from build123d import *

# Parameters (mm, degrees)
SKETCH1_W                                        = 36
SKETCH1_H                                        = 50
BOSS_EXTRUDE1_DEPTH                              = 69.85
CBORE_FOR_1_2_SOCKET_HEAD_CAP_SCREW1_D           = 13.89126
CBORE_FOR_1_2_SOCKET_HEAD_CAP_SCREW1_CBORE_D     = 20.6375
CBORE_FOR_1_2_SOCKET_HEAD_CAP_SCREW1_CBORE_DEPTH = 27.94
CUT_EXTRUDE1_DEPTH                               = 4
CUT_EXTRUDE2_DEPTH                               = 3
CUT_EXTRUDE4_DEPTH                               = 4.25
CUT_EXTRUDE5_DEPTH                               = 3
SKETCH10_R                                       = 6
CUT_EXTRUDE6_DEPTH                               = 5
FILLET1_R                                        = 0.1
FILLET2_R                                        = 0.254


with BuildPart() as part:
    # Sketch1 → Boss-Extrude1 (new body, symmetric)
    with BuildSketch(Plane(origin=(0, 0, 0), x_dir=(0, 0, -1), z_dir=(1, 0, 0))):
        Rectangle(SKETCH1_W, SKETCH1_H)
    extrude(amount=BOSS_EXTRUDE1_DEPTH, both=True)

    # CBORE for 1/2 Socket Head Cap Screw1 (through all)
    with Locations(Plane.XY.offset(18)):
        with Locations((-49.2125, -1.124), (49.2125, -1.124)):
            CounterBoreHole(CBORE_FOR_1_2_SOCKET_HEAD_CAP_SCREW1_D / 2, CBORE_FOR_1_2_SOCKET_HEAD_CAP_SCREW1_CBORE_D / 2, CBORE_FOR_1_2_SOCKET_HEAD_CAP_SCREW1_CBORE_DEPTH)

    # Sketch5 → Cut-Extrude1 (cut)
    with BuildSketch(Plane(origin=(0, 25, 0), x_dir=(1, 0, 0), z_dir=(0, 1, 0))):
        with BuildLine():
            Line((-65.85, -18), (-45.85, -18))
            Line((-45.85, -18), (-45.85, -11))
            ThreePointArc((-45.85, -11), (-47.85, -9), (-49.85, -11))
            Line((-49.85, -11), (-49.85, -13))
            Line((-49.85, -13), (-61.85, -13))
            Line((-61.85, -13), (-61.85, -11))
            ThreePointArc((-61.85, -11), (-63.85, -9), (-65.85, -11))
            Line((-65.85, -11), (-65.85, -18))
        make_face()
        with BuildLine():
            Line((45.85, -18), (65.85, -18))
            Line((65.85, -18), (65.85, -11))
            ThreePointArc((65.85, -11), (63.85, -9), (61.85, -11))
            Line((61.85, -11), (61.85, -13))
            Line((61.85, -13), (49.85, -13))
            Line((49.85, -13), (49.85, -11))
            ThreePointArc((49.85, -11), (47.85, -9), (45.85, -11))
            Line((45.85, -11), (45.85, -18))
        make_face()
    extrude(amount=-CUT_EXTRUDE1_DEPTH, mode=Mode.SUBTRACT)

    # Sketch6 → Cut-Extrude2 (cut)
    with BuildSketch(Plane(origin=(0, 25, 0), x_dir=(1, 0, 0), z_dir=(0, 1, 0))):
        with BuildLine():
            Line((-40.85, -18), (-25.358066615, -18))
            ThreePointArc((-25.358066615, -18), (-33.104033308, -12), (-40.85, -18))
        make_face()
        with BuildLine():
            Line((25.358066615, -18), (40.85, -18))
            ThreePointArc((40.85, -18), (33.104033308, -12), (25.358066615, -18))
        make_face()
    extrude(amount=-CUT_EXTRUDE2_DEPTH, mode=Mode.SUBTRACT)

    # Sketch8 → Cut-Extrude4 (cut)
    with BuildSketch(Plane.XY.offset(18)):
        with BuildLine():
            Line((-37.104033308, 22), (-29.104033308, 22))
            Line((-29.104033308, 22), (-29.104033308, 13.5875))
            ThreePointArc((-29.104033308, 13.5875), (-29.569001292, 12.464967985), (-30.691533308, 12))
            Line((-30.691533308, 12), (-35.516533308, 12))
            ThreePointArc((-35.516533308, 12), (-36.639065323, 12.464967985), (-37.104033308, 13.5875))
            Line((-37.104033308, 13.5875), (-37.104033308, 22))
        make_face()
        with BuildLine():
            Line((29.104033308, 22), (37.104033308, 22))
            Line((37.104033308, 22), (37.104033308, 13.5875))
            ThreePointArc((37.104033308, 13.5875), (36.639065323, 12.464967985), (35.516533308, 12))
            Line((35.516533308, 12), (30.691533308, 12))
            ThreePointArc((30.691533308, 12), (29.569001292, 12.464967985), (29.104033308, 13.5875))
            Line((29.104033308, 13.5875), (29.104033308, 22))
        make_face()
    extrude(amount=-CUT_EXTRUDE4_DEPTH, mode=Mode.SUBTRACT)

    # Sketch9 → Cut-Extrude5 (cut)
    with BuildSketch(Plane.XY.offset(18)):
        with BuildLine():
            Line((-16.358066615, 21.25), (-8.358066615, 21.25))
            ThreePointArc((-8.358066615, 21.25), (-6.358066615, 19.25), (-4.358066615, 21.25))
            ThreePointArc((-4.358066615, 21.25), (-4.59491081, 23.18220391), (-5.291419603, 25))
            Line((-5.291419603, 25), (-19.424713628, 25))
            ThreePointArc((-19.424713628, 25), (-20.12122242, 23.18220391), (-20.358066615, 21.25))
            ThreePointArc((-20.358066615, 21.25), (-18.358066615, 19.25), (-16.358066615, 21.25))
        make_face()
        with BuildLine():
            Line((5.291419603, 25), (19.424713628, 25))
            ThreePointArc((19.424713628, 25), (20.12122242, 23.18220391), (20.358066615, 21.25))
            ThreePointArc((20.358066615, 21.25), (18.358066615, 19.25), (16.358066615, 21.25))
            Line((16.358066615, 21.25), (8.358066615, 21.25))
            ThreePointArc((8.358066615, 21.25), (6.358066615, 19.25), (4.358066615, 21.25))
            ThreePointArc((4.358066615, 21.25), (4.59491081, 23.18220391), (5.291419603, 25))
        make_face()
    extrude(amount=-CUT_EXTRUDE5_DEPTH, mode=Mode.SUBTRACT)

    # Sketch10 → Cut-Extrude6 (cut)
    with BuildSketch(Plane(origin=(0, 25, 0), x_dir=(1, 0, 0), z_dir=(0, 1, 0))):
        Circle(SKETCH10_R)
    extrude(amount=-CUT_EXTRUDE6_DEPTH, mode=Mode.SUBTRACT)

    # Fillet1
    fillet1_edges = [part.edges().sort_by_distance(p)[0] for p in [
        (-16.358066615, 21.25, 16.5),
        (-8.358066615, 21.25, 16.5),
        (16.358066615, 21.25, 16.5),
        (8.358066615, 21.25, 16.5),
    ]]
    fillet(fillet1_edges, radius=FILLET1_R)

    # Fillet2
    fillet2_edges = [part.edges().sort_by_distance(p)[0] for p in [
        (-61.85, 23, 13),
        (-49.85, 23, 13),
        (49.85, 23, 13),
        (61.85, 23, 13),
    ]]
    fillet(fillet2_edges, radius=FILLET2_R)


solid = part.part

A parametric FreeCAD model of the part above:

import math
import FreeCAD as App
import Part
import Sketcher
from FreeCAD import Vector


def edges_at(feature, points):
    """Names of the edges that pass closest to the given points."""
    edges = feature.Shape.Edges
    near = lambda p: min(range(len(edges)), key=lambda i: edges[i].distToShape(Part.Vertex(*p))[0])
    return sorted({f"Edge{near(p) + 1}" for p in points})


def add_polygon(sketch, points):
    """Adds a closed chain of lines whose ends are joined by coincident constraints."""
    first, n = sketch.GeometryCount, len(points)
    for a, b in zip(points, points[1:] + points[:1]):
        sketch.addGeometry(Part.LineSegment(App.Vector(*a, 0), App.Vector(*b, 0)), False)
    for i in range(n):
        sketch.addConstraint(Sketcher.Constraint("Coincident", first + i, 2, first + (i + 1) % n, 1))

doc = App.newDocument("Part")
body = doc.addObject("PartDesign::Body", "Body")

# Sketch on YZ plane
sketch1 = doc.addObject("Sketcher::SketchObject", "Sketch")
body.addObject(sketch1)
sketch1.AttachmentSupport = (doc.YZ_Plane, [""])
sketch1.MapMode = "FlatFace"
add_polygon(sketch1, [(25, 18), (-25, 18), (-25, -18), (25, -18)])  # lines 0-3
sketch1.addConstraint([
    Sketcher.Constraint("Horizontal", 0),
    Sketcher.Constraint("Vertical", 1),
    Sketcher.Constraint("Horizontal", 2),
    Sketcher.Constraint("Vertical", 3),
    Sketcher.Constraint("Symmetric", 0, 2, 2, 2, -1, 1),
    Sketcher.Constraint("DistanceX", 0, 2, 0, 1, 50.0),
    Sketcher.Constraint("DistanceY", 1, 2, 1, 1, 36.0),
])
pad1 = doc.addObject("PartDesign::Pad", "Pad")
body.addObject(pad1)
pad1.Profile = sketch1
pad1.Length = 139.7
pad1.Midplane = True

# Sketch on XY plane
sketch2 = doc.addObject("Sketcher::SketchObject", "Sketch001")
body.addObject(sketch2)
sketch2.AttachmentSupport = (doc.XY_Plane, [""])
sketch2.MapMode = "FlatFace"
sketch2.AttachmentOffset = App.Placement(Vector(0, 0, 18), App.Rotation())
sketch2.addGeometry([
    Part.Circle(Vector(-49.2125, -1.124, 0), Vector(0, 0, 1), 6.94563),
    Part.Circle(Vector(49.2125, -1.124, 0), Vector(0, 0, 1), 6.94563),
], False)
sketch2.addConstraint([
    Sketcher.Constraint("Equal", 0, 1),
    Sketcher.Constraint("Symmetric", 0, 3, 1, 3, -2),
    Sketcher.Constraint("Diameter", 0, 13.89126),
    Sketcher.Constraint("DistanceY", 0, 3, -1, 1, 1.124),
    Sketcher.Constraint("DistanceX", 0, 3, 1, 3, 98.425),
])
doc.recompute()
hole = doc.addObject("PartDesign::Hole", "Hole")
body.addObject(hole)
hole.Profile = sketch2
hole.ThreadType = "None"
hole.Diameter = 13.89126
hole.DepthType = "ThroughAll"
hole.HoleCutType = "Counterbore"
hole.HoleCutDiameter = 20.6375
hole.HoleCutDepth = 27.94

# Sketch on XZ plane
sketch3 = doc.addObject("Sketcher::SketchObject", "Sketch002")
body.addObject(sketch3)
sketch3.AttachmentSupport = (doc.XZ_Plane, [""])
sketch3.MapMode = "FlatFace"
sketch3.AttachmentOffset = App.Placement(Vector(0, 0, -25), App.Rotation())
sketch3.addGeometry([
    Part.LineSegment(Vector(-65.85, 18, 0), Vector(-45.85, 18, 0)),  # 0
    Part.LineSegment(Vector(-45.85, 18, 0), Vector(-45.85, 11, 0)),  # 1
    Part.ArcOfCircle(Part.Circle(Vector(-47.85, 11, 0), Vector(0, 0, 1), 2), math.radians(180), math.radians(360)),  # 2
    Part.LineSegment(Vector(-49.85, 11, 0), Vector(-49.85, 13, 0)),  # 3
    Part.LineSegment(Vector(-49.85, 13, 0), Vector(-61.85, 13, 0)),  # 4
    Part.LineSegment(Vector(-61.85, 13, 0), Vector(-61.85, 11, 0)),  # 5
    Part.ArcOfCircle(Part.Circle(Vector(-63.85, 11, 0), Vector(0, 0, 1), 2), math.radians(180), math.radians(360)),  # 6
    Part.LineSegment(Vector(-65.85, 11, 0), Vector(-65.85, 18, 0)),  # 7
    Part.LineSegment(Vector(45.85, 18, 0), Vector(65.85, 18, 0)),  # 8
    Part.LineSegment(Vector(65.85, 18, 0), Vector(65.85, 11, 0)),  # 9
    Part.ArcOfCircle(Part.Circle(Vector(63.85, 11, 0), Vector(0, 0, 1), 2), math.radians(180), math.radians(360)),  # 10
    Part.LineSegment(Vector(61.85, 11, 0), Vector(61.85, 13, 0)),  # 11
    Part.LineSegment(Vector(61.85, 13, 0), Vector(49.85, 13, 0)),  # 12
    Part.LineSegment(Vector(49.85, 13, 0), Vector(49.85, 11, 0)),  # 13
    Part.ArcOfCircle(Part.Circle(Vector(47.85, 11, 0), Vector(0, 0, 1), 2), math.radians(180), math.radians(360)),  # 14
    Part.LineSegment(Vector(45.85, 11, 0), Vector(45.85, 18, 0)),  # 15
], False)
sketch3.addConstraint([
    Sketcher.Constraint("Coincident", 0, 2, 1, 1),
    Sketcher.Constraint("Tangent", 1, 2, 2, 2),
    Sketcher.Constraint("Tangent", 2, 1, 3, 1),
    Sketcher.Constraint("Coincident", 3, 2, 4, 1),
    Sketcher.Constraint("Coincident", 4, 2, 5, 1),
    Sketcher.Constraint("Tangent", 5, 2, 6, 2),
    Sketcher.Constraint("Tangent", 6, 1, 7, 1),
    Sketcher.Constraint("Coincident", 7, 2, 0, 1),
    Sketcher.Constraint("Coincident", 8, 2, 9, 1),
    Sketcher.Constraint("Tangent", 9, 2, 10, 2),
    Sketcher.Constraint("Tangent", 10, 1, 11, 1),
    Sketcher.Constraint("Coincident", 11, 2, 12, 1),
    Sketcher.Constraint("Coincident", 12, 2, 13, 1),
    Sketcher.Constraint("Tangent", 13, 2, 14, 2),
    Sketcher.Constraint("Tangent", 14, 1, 15, 1),
    Sketcher.Constraint("Coincident", 15, 2, 8, 1),
    Sketcher.Constraint("Horizontal", 0),
    Sketcher.Constraint("Vertical", 1),
    Sketcher.Constraint("Vertical", 3),
    Sketcher.Constraint("Horizontal", 4),
    Sketcher.Constraint("Vertical", 5),
    Sketcher.Constraint("Vertical", 7),
    Sketcher.Constraint("Horizontal", 8),
    Sketcher.Constraint("Vertical", 9),
    Sketcher.Constraint("Vertical", 11),
    Sketcher.Constraint("Horizontal", 12),
    Sketcher.Constraint("Vertical", 13),
    Sketcher.Constraint("Vertical", 15),
    Sketcher.Constraint("Equal", 2, 6),
    Sketcher.Constraint("Equal", 6, 10),
    Sketcher.Constraint("Equal", 10, 14),
    Sketcher.Constraint("Symmetric", 6, 3, 10, 3, -2),
    Sketcher.Constraint("Symmetric", 2, 3, 14, 3, -2),
    Sketcher.Constraint("Horizontal", 2, 3, 6, 3),
    Sketcher.Constraint("Horizontal", 7, 2, 8, 2),
    Sketcher.Constraint("Horizontal", 4, 2, 11, 2),
    Sketcher.Constraint("Radius", 2, 2.0),
    Sketcher.Constraint("DistanceX", 0, 1, 0, 2, 20.0),
    Sketcher.Constraint("DistanceY", 1, 2, 1, 1, 7.0),
    Sketcher.Constraint("DistanceY", 3, 1, 3, 2, 2.0),
    Sketcher.Constraint("DistanceY", -1, 1, 2, 3, 11.0),
    Sketcher.Constraint("DistanceX", 2, 3, 10, 3, 111.7),
])
pocket1 = doc.addObject("PartDesign::Pocket", "Pocket")
body.addObject(pocket1)
pocket1.Profile = sketch3
pocket1.Length = 4
pocket1.Reversed = True

# Sketch on XZ plane
sketch4 = doc.addObject("Sketcher::SketchObject", "Sketch003")
body.addObject(sketch4)
sketch4.AttachmentSupport = (doc.XZ_Plane, [""])
sketch4.MapMode = "FlatFace"
sketch4.AttachmentOffset = App.Placement(Vector(0, 0, -25), App.Rotation())
sketch4.addGeometry([
    Part.LineSegment(Vector(-40.85, 18, 0), Vector(-25.358067, 18, 0)),
    Part.ArcOfCircle(Part.Circle(Vector(-33.104033, 20, 0), Vector(0, 0, 1), 8), math.radians(-165.522488), math.radians(-14.477512)),
    Part.LineSegment(Vector(25.358067, 18, 0), Vector(40.85, 18, 0)),
    Part.ArcOfCircle(Part.Circle(Vector(33.104033, 20, 0), Vector(0, 0, 1), 8), math.radians(-165.522488), math.radians(-14.477512)),
], False)
sketch4.addConstraint([
    Sketcher.Constraint("Coincident", 0, 1, 1, 1),
    Sketcher.Constraint("Coincident", 1, 2, 0, 2),
    Sketcher.Constraint("Coincident", 2, 1, 3, 1),
    Sketcher.Constraint("Coincident", 3, 2, 2, 2),
    Sketcher.Constraint("Horizontal", 0),
    Sketcher.Constraint("Horizontal", 2),
    Sketcher.Constraint("Equal", 1, 3),
    Sketcher.Constraint("Symmetric", 1, 3, 3, 3, -2),
    Sketcher.Constraint("Horizontal", 1, 2, 2, 1),
    Sketcher.Constraint("Radius", 1, 8.0),
    Sketcher.Constraint("DistanceY", -1, 1, 1, 3, 20.0),
    Sketcher.Constraint("DistanceY", -1, 1, 0, 1, 18.0),
    Sketcher.Constraint("DistanceX", 0, 1, 3, 2, 81.7),
])
pocket2 = doc.addObject("PartDesign::Pocket", "Pocket001")
body.addObject(pocket2)
pocket2.Profile = sketch4
pocket2.Length = 3
pocket2.Reversed = True

# Sketch on XY plane
sketch5 = doc.addObject("Sketcher::SketchObject", "Sketch004")
body.addObject(sketch5)
sketch5.AttachmentSupport = (doc.XY_Plane, [""])
sketch5.MapMode = "FlatFace"
sketch5.AttachmentOffset = App.Placement(Vector(0, 0, 18), App.Rotation())
sketch5.addGeometry([
    Part.LineSegment(Vector(-29.104033, 22, 0), Vector(-37.104033, 22, 0)),  # 0
    Part.LineSegment(Vector(-37.104033, 22, 0), Vector(-37.104033, 13.5875, 0)),  # 1
    Part.ArcOfCircle(Part.Circle(Vector(-35.516533, 13.5875, 0), Vector(0, 0, 1), 1.5875), math.radians(180), math.radians(270)),  # 2
    Part.LineSegment(Vector(-35.516533, 12, 0), Vector(-30.691533, 12, 0)),  # 3
    Part.ArcOfCircle(Part.Circle(Vector(-30.691533, 13.5875, 0), Vector(0, 0, 1), 1.5875), math.radians(-90), math.radians(0)),  # 4
    Part.LineSegment(Vector(-29.104033, 13.5875, 0), Vector(-29.104033, 22, 0)),  # 5
    Part.LineSegment(Vector(37.104033, 22, 0), Vector(29.104033, 22, 0)),  # 6
    Part.LineSegment(Vector(29.104033, 22, 0), Vector(29.104033, 13.5875, 0)),  # 7
    Part.ArcOfCircle(Part.Circle(Vector(30.691533, 13.5875, 0), Vector(0, 0, 1), 1.5875), math.radians(180), math.radians(270)),  # 8
    Part.LineSegment(Vector(30.691533, 12, 0), Vector(35.516533, 12, 0)),  # 9
    Part.ArcOfCircle(Part.Circle(Vector(35.516533, 13.5875, 0), Vector(0, 0, 1), 1.5875), math.radians(-90), math.radians(0)),  # 10
    Part.LineSegment(Vector(37.104033, 13.5875, 0), Vector(37.104033, 22, 0)),  # 11
], False)
sketch5.addConstraint([
    Sketcher.Constraint("Coincident", 0, 2, 1, 1),
    Sketcher.Constraint("Tangent", 1, 2, 2, 1),
    Sketcher.Constraint("Tangent", 2, 2, 3, 1),
    Sketcher.Constraint("Tangent", 3, 2, 4, 1),
    Sketcher.Constraint("Tangent", 4, 2, 5, 1),
    Sketcher.Constraint("Coincident", 5, 2, 0, 1),
    Sketcher.Constraint("Coincident", 6, 2, 7, 1),
    Sketcher.Constraint("Tangent", 7, 2, 8, 1),
    Sketcher.Constraint("Tangent", 8, 2, 9, 1),
    Sketcher.Constraint("Tangent", 9, 2, 10, 1),
    Sketcher.Constraint("Tangent", 10, 2, 11, 1),
    Sketcher.Constraint("Coincident", 11, 2, 6, 1),
    Sketcher.Constraint("Horizontal", 0),
    Sketcher.Constraint("Vertical", 1),
    Sketcher.Constraint("Horizontal", 3),
    Sketcher.Constraint("Vertical", 5),
    Sketcher.Constraint("Horizontal", 6),
    Sketcher.Constraint("Vertical", 7),
    Sketcher.Constraint("Horizontal", 9),
    Sketcher.Constraint("Vertical", 11),
    Sketcher.Constraint("Equal", 2, 4),
    Sketcher.Constraint("Equal", 4, 8),
    Sketcher.Constraint("Equal", 8, 10),
    Sketcher.Constraint("Symmetric", 4, 3, 8, 3, -2),
    Sketcher.Constraint("Symmetric", 0, 2, 11, 2, -2),
    Sketcher.Constraint("DistanceX", 0, 2, 0, 1, 8.0),
    Sketcher.Constraint("DistanceY", -1, 1, 0, 2, 22.0),
    Sketcher.Constraint("DistanceY", -1, 1, 2, 2, 12.0),
    Sketcher.Constraint("Radius", 2, 1.5875),
    Sketcher.Constraint("DistanceX", 2, 3, -1, 1, 35.516533),
])
pocket3 = doc.addObject("PartDesign::Pocket", "Pocket002")
body.addObject(pocket3)
pocket3.Profile = sketch5
pocket3.Length = 4.25

# Sketch on XY plane
sketch6 = doc.addObject("Sketcher::SketchObject", "Sketch005")
body.addObject(sketch6)
sketch6.AttachmentSupport = (doc.XY_Plane, [""])
sketch6.MapMode = "FlatFace"
sketch6.AttachmentOffset = App.Placement(Vector(0, 0, 18), App.Rotation())
sketch6.addGeometry([
    Part.LineSegment(Vector(-16.358067, 21.25, 0), Vector(-8.358067, 21.25, 0)),  # 0
    Part.ArcOfCircle(Part.Circle(Vector(-6.358067, 21.25, 0), Vector(0, 0, 1), 2), math.radians(180), math.radians(360)),  # 1
    Part.ArcOfCircle(Part.Circle(Vector(-12.358067, 21.25, 0), Vector(0, 0, 1), 8), math.radians(0), math.radians(27.953187)),  # 2
    Part.LineSegment(Vector(-5.29142, 25, 0), Vector(-19.424714, 25, 0)),  # 3
    Part.ArcOfCircle(Part.Circle(Vector(-12.358067, 21.25, 0), Vector(0, 0, 1), 8), math.radians(152.046813), math.radians(180)),  # 4
    Part.ArcOfCircle(Part.Circle(Vector(-18.358067, 21.25, 0), Vector(0, 0, 1), 2), math.radians(180), math.radians(360)),  # 5
    Part.LineSegment(Vector(19.424714, 25, 0), Vector(5.29142, 25, 0)),  # 6
    Part.ArcOfCircle(Part.Circle(Vector(12.358067, 21.25, 0), Vector(0, 0, 1), 8), math.radians(152.046813), math.radians(180)),  # 7
    Part.ArcOfCircle(Part.Circle(Vector(6.358067, 21.25, 0), Vector(0, 0, 1), 2), math.radians(180), math.radians(360)),  # 8
    Part.LineSegment(Vector(8.358067, 21.25, 0), Vector(16.358067, 21.25, 0)),  # 9
    Part.ArcOfCircle(Part.Circle(Vector(18.358067, 21.25, 0), Vector(0, 0, 1), 2), math.radians(180), math.radians(360)),  # 10
    Part.ArcOfCircle(Part.Circle(Vector(12.358067, 21.25, 0), Vector(0, 0, 1), 8), math.radians(0), math.radians(27.953187)),  # 11
], False)
sketch6.addConstraint([
    Sketcher.Constraint("Coincident", 0, 2, 1, 1),
    Sketcher.Constraint("Tangent", 1, 2, 2, 1),
    Sketcher.Constraint("Coincident", 2, 2, 3, 1),
    Sketcher.Constraint("Coincident", 3, 2, 4, 1),
    Sketcher.Constraint("Tangent", 4, 2, 5, 1),
    Sketcher.Constraint("Coincident", 5, 2, 0, 1),
    Sketcher.Constraint("Coincident", 6, 2, 7, 1),
    Sketcher.Constraint("Tangent", 7, 2, 8, 1),
    Sketcher.Constraint("Coincident", 8, 2, 9, 1),
    Sketcher.Constraint("Coincident", 9, 2, 10, 1),
    Sketcher.Constraint("Tangent", 10, 2, 11, 1),
    Sketcher.Constraint("Coincident", 11, 2, 6, 1),
    Sketcher.Constraint("Horizontal", 0),
    Sketcher.Constraint("Horizontal", 3),
    Sketcher.Constraint("Horizontal", 6),
    Sketcher.Constraint("Horizontal", 9),
    Sketcher.Constraint("Coincident", 4, 3, 2, 3),
    Sketcher.Constraint("Coincident", 11, 3, 7, 3),
    Sketcher.Constraint("Equal", 2, 4),
    Sketcher.Constraint("Equal", 1, 5),
    Sketcher.Constraint("Equal", 4, 7),
    Sketcher.Constraint("Equal", 5, 8),
    Sketcher.Constraint("Equal", 8, 10),
    Sketcher.Constraint("Equal", 7, 11),
    Sketcher.Constraint("Symmetric", 2, 3, 7, 3, -2),
    Sketcher.Constraint("Horizontal", 1, 3, 2, 3),
    Sketcher.Constraint("Horizontal", 4, 3, 5, 3),
    Sketcher.Constraint("Horizontal", 7, 3, 8, 3),
    Sketcher.Constraint("Horizontal", 8, 3, 10, 3),
    Sketcher.Constraint("Horizontal", 11, 3, 0, 2),
    Sketcher.Constraint("Horizontal", 3, 2, 6, 2),
    Sketcher.Constraint("Horizontal", 7, 2, 8, 2),
    Sketcher.Constraint("Radius", 1, 2.0),
    Sketcher.Constraint("Radius", 2, 8.0),
    Sketcher.Constraint("DistanceY", -1, 1, 2, 2, 25.0),
    Sketcher.Constraint("DistanceY", -1, 1, 1, 3, 21.25),
    Sketcher.Constraint("DistanceX", 2, 2, -1, 1, 5.29142),
])
pocket4 = doc.addObject("PartDesign::Pocket", "Pocket003")
body.addObject(pocket4)
pocket4.Profile = sketch6
pocket4.Length = 3

# Sketch on XZ plane
sketch7 = doc.addObject("Sketcher::SketchObject", "Sketch006")
body.addObject(sketch7)
sketch7.AttachmentSupport = (doc.XZ_Plane, [""])
sketch7.MapMode = "FlatFace"
sketch7.AttachmentOffset = App.Placement(Vector(0, 0, -25), App.Rotation())
sketch7.addGeometry(Part.Circle(Vector(0, 0, 0), Vector(0, 0, 1), 6), False)
sketch7.addConstraint([
    Sketcher.Constraint("Coincident", 0, 3, -1, 1),
    Sketcher.Constraint("Diameter", 0, 12.0),
])
pocket5 = doc.addObject("PartDesign::Pocket", "Pocket004")
body.addObject(pocket5)
pocket5.Profile = sketch7
pocket5.Length = 5
pocket5.Reversed = True
doc.recompute()

fillet = doc.addObject("PartDesign::Fillet", "Fillet")
body.addObject(fillet)
fillet.Base = (pocket5, edges_at(pocket5, [
    (-16.358, 21.25, 16.5),
    (-8.358, 21.25, 16.5),
    (16.358, 21.25, 16.5),
    (8.358, 21.25, 16.5),
]))
fillet.Radius = 0.1
doc.recompute()

fillet2 = doc.addObject("PartDesign::Fillet", "Fillet001")
body.addObject(fillet2)
fillet2.Base = (fillet, edges_at(fillet, [
    (-61.85, 23, 13),
    (-49.85, 23, 13),
    (49.85, 23, 13),
    (61.85, 23, 13),
]))
fillet2.Radius = 0.254

doc.recompute()
